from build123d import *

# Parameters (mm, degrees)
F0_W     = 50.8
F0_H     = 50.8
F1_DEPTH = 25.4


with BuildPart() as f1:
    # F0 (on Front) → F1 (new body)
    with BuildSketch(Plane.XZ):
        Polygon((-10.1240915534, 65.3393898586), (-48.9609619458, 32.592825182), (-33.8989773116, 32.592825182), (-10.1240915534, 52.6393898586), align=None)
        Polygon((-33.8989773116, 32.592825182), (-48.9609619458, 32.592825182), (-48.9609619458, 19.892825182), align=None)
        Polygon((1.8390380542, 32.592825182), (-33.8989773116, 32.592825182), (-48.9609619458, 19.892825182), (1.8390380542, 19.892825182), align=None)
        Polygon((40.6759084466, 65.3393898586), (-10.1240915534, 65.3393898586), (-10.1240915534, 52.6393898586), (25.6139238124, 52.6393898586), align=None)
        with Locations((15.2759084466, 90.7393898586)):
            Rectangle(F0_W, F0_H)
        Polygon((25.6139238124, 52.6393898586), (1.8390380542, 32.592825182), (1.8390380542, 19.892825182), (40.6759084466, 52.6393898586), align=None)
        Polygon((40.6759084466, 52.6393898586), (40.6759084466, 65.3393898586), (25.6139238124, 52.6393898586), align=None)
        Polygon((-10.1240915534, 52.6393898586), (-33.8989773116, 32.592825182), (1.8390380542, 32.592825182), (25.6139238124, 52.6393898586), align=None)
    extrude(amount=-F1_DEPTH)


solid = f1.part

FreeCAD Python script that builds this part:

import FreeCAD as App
import Part
import Sketcher
from FreeCAD import Vector
Q = App.Units.Quantity

doc = App.newDocument("Part")
params = doc.addObject("Spreadsheet::Sheet", "Params")
for row, (alias, value) in enumerate([
    ("sketch1_width", "2 in"),
    ("sketch1_length", "2 in"),
    ("sketch1_height", "2.5 in"),
    ("pad1_length", "1 in"),
], start=1):
    params.set(f"A{row}", alias)
    params.set(f"B{row}", "=" + value)
    params.setAlias(f"B{row}", alias)

body = doc.addObject("PartDesign::Body", "Body")

sketch1 = body.newObject("Sketcher::SketchObject", "Sketch")
sketch1.AttachmentSupport = (doc.getObject("XZ_Plane"), [""])
sketch1.MapMode = "FlatFace"
sketch1.addGeometry([
    Part.LineSegment(Vector(2, 20, 0), Vector(41, 53, 0)),
    Part.LineSegment(Vector(41, 53, 0), Vector(41, 116, 0)),
    Part.LineSegment(Vector(41, 116, 0), Vector(-10, 116, 0)),
    Part.LineSegment(Vector(-10, 116, 0), Vector(-10, 65, 0)),
    Part.LineSegment(Vector(-10, 65, 0), Vector(-49, 33, 0)),
    Part.LineSegment(Vector(-49, 33, 0), Vector(-49, 20, 0)),
    Part.LineSegment(Vector(-49, 20, 0), Vector(2, 20, 0)),
], False)
sketch1.addConstraint([
    Sketcher.Constraint("Coincident", 0, 2, 1, 1),
    Sketcher.Constraint("Coincident", 1, 2, 2, 1),
    Sketcher.Constraint("Coincident", 2, 2, 3, 1),
    Sketcher.Constraint("Coincident", 3, 2, 4, 1),
    Sketcher.Constraint("Coincident", 4, 2, 5, 1),
    Sketcher.Constraint("Coincident", 5, 2, 6, 1),
    Sketcher.Constraint("Coincident", 6, 2, 0, 1),
    Sketcher.Constraint("Vertical", 1),
    Sketcher.Constraint("Horizontal", 2),
    Sketcher.Constraint("Vertical", 3),
    Sketcher.Constraint("Vertical", 5),
    Sketcher.Constraint("Horizontal", 6),
    Sketcher.Constraint("Parallel", 0, 4),
    Sketcher.Constraint("Equal", 2, 6),
    Sketcher.Constraint("Equal", 6, 3),
    Sketcher.Constraint("DistanceX", 2, 2, 2, 1, Q("2 in")),
    Sketcher.Constraint("Distance", 0, Q("2 in")),
    Sketcher.Constraint("DistanceY", 1, 1, 1, 2, Q("2.5 in")),
    Sketcher.Constraint("DistanceX", -1, 1, 0, 2, 40.675908),
    Sketcher.Constraint("DistanceY", -1, 1, 0, 2, 52.63939),
    Sketcher.Constraint("DistanceX", 4, 2, -1, 1, 48.960962),
])
sketch1.setExpression("Constraints[15]", "Params.sketch1_width")
sketch1.setExpression("Constraints[16]", "Params.sketch1_length")
sketch1.setExpression("Constraints[17]", "Params.sketch1_height")
pad1 = body.newObject("PartDesign::Pad", "Pad")
pad1.Profile = sketch1
pad1.setExpression("Length", "Params.pad1_length")
pad1.Reversed = True

doc.recompute()
